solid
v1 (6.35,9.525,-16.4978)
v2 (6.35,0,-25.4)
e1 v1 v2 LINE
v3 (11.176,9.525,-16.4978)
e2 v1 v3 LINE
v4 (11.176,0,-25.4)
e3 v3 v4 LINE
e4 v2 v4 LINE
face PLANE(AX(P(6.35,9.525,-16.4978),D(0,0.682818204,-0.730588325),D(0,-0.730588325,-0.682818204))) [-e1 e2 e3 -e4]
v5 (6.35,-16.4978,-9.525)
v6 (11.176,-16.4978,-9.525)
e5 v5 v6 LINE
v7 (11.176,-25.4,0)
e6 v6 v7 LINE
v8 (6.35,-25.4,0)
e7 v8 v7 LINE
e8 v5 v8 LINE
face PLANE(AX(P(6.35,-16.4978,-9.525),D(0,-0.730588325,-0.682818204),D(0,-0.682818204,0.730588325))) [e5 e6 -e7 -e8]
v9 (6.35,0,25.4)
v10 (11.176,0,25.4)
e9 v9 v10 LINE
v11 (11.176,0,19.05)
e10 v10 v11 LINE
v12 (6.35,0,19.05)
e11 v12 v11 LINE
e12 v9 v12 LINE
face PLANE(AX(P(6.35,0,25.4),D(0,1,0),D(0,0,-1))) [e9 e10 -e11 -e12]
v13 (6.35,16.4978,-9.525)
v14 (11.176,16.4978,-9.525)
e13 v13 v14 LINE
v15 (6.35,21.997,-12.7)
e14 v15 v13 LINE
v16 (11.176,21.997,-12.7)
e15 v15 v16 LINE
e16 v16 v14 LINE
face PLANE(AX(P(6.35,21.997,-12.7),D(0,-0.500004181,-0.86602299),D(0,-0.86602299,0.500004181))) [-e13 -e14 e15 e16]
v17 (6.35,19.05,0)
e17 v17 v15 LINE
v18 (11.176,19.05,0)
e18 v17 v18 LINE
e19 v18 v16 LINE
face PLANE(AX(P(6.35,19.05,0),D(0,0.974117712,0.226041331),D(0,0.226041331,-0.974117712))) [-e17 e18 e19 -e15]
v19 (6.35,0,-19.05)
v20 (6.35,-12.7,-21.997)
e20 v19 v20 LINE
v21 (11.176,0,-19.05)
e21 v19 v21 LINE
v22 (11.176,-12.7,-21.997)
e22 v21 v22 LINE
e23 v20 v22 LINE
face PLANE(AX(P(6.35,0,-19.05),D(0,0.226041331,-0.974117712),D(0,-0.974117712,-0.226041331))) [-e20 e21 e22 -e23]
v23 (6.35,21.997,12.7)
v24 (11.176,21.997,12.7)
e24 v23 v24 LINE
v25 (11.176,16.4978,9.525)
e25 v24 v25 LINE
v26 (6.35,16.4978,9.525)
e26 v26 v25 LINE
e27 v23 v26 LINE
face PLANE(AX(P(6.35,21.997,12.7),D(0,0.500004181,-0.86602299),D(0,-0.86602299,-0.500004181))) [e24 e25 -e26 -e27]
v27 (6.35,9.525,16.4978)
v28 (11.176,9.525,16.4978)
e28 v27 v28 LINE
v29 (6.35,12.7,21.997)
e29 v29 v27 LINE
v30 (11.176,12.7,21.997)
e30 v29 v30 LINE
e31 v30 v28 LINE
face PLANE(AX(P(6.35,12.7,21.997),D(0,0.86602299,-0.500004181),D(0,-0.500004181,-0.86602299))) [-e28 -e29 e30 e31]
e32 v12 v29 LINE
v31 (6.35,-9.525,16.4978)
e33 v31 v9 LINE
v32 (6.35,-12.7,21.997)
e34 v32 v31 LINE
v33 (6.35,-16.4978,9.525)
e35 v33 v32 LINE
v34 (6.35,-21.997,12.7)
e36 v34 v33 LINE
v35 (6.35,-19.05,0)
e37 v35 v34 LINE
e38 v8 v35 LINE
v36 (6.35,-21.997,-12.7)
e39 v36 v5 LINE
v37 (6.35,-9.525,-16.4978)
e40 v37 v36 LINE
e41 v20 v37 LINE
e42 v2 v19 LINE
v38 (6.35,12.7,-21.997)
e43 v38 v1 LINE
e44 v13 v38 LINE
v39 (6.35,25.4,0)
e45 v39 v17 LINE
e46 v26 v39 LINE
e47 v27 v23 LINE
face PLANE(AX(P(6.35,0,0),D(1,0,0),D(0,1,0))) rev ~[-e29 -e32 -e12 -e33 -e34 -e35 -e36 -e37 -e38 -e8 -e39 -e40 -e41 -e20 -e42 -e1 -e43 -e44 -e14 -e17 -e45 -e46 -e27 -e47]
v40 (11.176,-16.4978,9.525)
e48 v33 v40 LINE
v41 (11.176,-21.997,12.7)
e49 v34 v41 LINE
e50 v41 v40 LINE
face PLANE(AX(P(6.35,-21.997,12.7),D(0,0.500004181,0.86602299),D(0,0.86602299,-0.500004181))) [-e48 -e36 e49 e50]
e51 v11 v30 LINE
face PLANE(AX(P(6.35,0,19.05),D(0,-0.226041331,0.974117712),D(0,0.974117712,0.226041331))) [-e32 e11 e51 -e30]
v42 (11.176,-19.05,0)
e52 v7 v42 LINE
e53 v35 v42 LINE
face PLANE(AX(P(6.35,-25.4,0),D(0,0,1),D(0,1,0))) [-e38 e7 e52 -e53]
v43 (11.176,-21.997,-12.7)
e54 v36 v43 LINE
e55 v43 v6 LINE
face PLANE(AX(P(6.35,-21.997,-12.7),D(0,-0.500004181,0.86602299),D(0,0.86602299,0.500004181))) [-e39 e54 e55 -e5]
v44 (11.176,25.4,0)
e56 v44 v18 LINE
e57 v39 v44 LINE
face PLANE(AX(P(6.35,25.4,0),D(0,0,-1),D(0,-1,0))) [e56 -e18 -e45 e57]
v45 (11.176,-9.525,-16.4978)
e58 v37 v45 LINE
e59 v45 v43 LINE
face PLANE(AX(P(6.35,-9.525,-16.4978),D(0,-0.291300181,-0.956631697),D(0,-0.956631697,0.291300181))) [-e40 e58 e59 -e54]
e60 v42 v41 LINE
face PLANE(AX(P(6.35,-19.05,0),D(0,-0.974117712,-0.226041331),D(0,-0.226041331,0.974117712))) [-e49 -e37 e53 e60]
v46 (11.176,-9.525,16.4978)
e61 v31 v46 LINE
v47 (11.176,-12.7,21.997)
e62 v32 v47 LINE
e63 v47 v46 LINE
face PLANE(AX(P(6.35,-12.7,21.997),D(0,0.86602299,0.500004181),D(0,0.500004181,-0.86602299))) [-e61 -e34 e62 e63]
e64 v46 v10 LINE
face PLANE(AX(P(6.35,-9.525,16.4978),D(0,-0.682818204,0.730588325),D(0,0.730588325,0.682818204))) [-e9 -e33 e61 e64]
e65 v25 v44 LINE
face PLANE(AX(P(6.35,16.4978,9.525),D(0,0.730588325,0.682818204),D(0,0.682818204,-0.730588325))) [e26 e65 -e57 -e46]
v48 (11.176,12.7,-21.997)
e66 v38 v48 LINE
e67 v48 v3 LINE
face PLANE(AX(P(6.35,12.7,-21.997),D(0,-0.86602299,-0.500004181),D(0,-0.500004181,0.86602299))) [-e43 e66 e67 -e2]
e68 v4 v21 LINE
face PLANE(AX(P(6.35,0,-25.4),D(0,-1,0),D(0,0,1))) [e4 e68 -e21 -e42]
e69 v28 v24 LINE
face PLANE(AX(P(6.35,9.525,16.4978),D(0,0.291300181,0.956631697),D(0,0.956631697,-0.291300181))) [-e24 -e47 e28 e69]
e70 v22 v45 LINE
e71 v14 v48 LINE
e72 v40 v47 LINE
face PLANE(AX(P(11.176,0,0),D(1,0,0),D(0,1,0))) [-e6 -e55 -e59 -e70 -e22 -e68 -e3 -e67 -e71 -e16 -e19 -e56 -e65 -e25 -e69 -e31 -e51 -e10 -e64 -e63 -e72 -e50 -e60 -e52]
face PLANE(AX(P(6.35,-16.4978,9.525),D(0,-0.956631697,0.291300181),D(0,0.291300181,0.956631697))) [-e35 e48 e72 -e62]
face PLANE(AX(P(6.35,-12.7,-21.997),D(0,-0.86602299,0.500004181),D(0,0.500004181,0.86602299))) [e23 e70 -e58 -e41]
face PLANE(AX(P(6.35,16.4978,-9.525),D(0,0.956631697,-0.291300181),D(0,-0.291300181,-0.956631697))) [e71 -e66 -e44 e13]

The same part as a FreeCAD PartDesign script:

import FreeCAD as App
import Part
import Sketcher
Q = App.Units.Quantity


def add_polygon(sketch, points):
    """Adds a closed chain of lines whose ends are joined by coincident constraints."""
    first, n = sketch.GeometryCount, len(points)
    for a, b in zip(points, points[1:] + points[:1]):
        sketch.addGeometry(Part.LineSegment(App.Vector(*a, 0), App.Vector(*b, 0)), False)
    for i in range(n):
        sketch.addConstraint(Sketcher.Constraint("Coincident", first + i, 2, first + (i + 1) % n, 1))

doc = App.newDocument("Part")
body = doc.addObject("PartDesign::Body", "Body")

# Sketch on YZ plane
sketch1 = body.newObject("Sketcher::SketchObject", "Sketch")
sketch1.AttachmentSupport = (doc.getObject("YZ_Plane"), [""])
sketch1.MapMode = "FlatFace"
sketch1.AttachmentOffset = App.Placement(App.Vector(0, 0, 0.25 * 25.4), App.Rotation())
add_polygon(sketch1, [(16.4978, 9.525), (21.997, 12.7), (9.525, 16.4978), (12.7, 21.997), (0, 19.05), (0, 25.4), (-9.525, 16.4978), (-12.7, 21.997), (-16.4978, 9.525), (-21.997, 12.7), (-19.05, 0), (-25.4, 0), (-16.4978, -9.525), (-21.997, -12.7), (-9.525, -16.4978), (-12.7, -21.997), (0, -19.05), (0, -25.4), (9.525, -16.4978), (12.7, -21.997), (16.4978, -9.525), (21.997, -12.7), (19.05, 0), (25.4, 0)])  # lines 0-23
sketch1.addConstraint([
    Sketcher.Constraint("Vertical", 4),
    Sketcher.Constraint("Horizontal", 10),
    Sketcher.Constraint("Vertical", 16),
    Sketcher.Constraint("Horizontal", 22),
    Sketcher.Constraint("Symmetric", 0, 2, 12, 2, -1, 1),
    Sketcher.Constraint("Symmetric", 1, 2, 13, 2, -1, 1),
    Sketcher.Constraint("Symmetric", 2, 2, 14, 2, -1, 1),
    Sketcher.Constraint("Symmetric", 3, 2, 15, 2, -1, 1),
    Sketcher.Constraint("Symmetric", 5, 2, 17, 2, -1, 1),
    Sketcher.Constraint("Symmetric", 6, 2, 18, 2, -1, 1),
    Sketcher.Constraint("Symmetric", 7, 2, 19, 2, -1, 1),
    Sketcher.Constraint("Symmetric", 8, 2, 20, 2, -1, 1),
    Sketcher.Constraint("Symmetric", 9, 2, 21, 2, -1, 1),
    Sketcher.Constraint("Symmetric", 11, 2, 23, 2, -1, 1),
    Sketcher.Constraint("Symmetric", 1, 2, 5, 2, -2),
    Sketcher.Constraint("Symmetric", 2, 2, 6, 2, -2),
    Sketcher.Constraint("Symmetric", 0, 2, 8, 2, -2),
    Sketcher.Constraint("Symmetric", 11, 2, 19, 2, -2),
    Sketcher.Constraint("Symmetric", 10, 2, 22, 2, -2),
    Sketcher.Constraint("Symmetric", 4, 2, 16, 2, -1),
    Sketcher.Constraint("Perpendicular", 0, 6),
    Sketcher.Constraint("Perpendicular", 1, 7),
    Sketcher.Constraint("Perpendicular", 3, 9),
    Sketcher.Constraint("Perpendicular", 5, 11),
    Sketcher.Constraint("Equal", 22, 4),
    Sketcher.Constraint("Equal", 0, 2),
    Sketcher.Constraint("Equal", 1, 3),
    Sketcher.Constraint("Equal", 3, 5),
    Sketcher.Constraint("DistanceY", -1, 1, 4, 2, Q("1 in")),
    Sketcher.Constraint("Angle", 0, Q("30.0003 deg")),
    Sketcher.Constraint("DistanceX", 6, 2, 2, 2, Q("1 in")),
    Sketcher.Constraint("DistanceX", 10, 2, 10, 1, Q("0.25 in")),
])
pad1 = body.newObject("PartDesign::Pad", "Pad")
pad1.Profile = sketch1
pad1.Length = Q("0.19 in")

doc.recompute()
